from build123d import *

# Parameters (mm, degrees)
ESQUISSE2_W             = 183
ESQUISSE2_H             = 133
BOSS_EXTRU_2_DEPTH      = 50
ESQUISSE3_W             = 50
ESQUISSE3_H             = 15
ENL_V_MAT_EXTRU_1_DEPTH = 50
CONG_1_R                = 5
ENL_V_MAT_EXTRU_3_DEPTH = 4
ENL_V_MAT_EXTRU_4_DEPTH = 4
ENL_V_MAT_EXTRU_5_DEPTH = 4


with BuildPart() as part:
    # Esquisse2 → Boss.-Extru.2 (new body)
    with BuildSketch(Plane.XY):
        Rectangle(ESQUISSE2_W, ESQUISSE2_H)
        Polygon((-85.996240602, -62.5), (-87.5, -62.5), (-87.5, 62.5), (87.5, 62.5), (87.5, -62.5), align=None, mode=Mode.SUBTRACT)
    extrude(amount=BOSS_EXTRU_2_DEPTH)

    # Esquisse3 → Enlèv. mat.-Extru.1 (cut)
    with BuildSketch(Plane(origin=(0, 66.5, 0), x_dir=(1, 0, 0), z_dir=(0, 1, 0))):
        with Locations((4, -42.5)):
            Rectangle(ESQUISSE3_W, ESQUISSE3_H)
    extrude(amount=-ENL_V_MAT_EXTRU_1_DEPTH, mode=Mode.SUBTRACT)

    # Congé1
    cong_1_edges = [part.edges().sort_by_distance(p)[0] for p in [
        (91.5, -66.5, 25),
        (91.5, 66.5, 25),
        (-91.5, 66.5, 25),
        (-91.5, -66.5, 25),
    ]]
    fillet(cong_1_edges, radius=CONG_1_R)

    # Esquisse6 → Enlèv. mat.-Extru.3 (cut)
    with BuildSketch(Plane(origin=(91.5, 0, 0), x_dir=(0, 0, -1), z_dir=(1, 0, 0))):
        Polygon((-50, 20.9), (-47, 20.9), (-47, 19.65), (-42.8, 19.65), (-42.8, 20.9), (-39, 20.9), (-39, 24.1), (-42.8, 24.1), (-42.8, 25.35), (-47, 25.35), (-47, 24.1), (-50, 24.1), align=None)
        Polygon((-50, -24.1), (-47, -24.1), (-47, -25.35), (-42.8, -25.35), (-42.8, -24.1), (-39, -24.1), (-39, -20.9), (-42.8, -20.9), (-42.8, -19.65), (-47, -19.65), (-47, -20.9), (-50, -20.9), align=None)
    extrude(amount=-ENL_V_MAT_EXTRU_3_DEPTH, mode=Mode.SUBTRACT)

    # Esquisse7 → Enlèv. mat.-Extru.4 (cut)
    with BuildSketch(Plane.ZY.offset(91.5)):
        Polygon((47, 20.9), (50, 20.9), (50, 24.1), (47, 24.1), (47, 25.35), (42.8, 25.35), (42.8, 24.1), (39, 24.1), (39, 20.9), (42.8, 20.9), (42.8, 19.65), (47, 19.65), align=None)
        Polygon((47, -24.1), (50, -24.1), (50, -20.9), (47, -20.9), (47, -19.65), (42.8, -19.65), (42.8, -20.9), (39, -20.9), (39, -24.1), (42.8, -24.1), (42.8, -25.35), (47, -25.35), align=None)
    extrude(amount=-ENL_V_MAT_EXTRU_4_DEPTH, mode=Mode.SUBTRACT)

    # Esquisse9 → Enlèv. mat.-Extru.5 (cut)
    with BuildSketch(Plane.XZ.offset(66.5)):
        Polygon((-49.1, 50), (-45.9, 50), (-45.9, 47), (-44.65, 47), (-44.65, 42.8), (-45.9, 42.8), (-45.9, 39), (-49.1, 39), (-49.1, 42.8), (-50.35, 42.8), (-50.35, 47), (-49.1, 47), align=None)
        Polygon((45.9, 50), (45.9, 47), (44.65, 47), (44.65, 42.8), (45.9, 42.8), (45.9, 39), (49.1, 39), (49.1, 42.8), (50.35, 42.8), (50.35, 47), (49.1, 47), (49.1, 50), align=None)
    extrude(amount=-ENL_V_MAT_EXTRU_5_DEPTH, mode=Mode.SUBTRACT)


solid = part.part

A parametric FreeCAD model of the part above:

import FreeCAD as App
import Part
import Sketcher
Q = App.Units.Quantity


def edges_at(feature, points):
    """Names of the edges that pass closest to the given points."""
    edges = feature.Shape.Edges
    near = lambda p: min(range(len(edges)), key=lambda i: edges[i].distToShape(Part.Vertex(*p))[0])
    return sorted({f"Edge{near(p) + 1}" for p in points})


def add_polygon(sketch, points):
    """Adds a closed chain of lines whose ends are joined by coincident constraints."""
    first, n = sketch.GeometryCount, len(points)
    for a, b in zip(points, points[1:] + points[:1]):
        sketch.addGeometry(Part.LineSegment(App.Vector(*a, 0), App.Vector(*b, 0)), False)
    for i in range(n):
        sketch.addConstraint(Sketcher.Constraint("Coincident", first + i, 2, first + (i + 1) % n, 1))

doc = App.newDocument("Part")
body = doc.addObject("PartDesign::Body", "Body")

# Sketch on XY plane
sketch1 = doc.addObject("Sketcher::SketchObject", "Sketch")
body.addObject(sketch1)
sketch1.AttachmentSupport = (doc.XY_Plane, [""])
sketch1.MapMode = "FlatFace"
add_polygon(sketch1, [(-92, 66), (-92, -66), (92, -66), (92, 66)])  # lines 0-3
add_polygon(sketch1, [(88, -62), (-88, -62), (-88, 62), (88, 62)])  # lines 4-7
sketch1.addConstraint([
    Sketcher.Constraint("Vertical", 0),
    Sketcher.Constraint("Horizontal", 1),
    Sketcher.Constraint("Vertical", 2),
    Sketcher.Constraint("Horizontal", 3),
    Sketcher.Constraint("Horizontal", 4),
    Sketcher.Constraint("Vertical", 5),
    Sketcher.Constraint("Horizontal", 6),
    Sketcher.Constraint("Vertical", 7),
    Sketcher.Constraint("Symmetric", 0, 2, 2, 2, -1, 1),
    Sketcher.Constraint("Symmetric", 4, 2, 6, 2, -1, 1),
    Sketcher.Constraint("DistanceX", 1, 1, 1, 2, Q("183 mm")),
    Sketcher.Constraint("DistanceX", 4, 2, 4, 1, Q("175 mm")),
    Sketcher.Constraint("DistanceY", 0, 2, 0, 1, Q("133 mm")),
    Sketcher.Constraint("DistanceY", 5, 1, 5, 2, Q("125 mm")),
])
pad1 = doc.addObject("PartDesign::Pad", "Pad")
body.addObject(pad1)
pad1.Profile = sketch1
pad1.Length = 50

# Sketch on XZ plane
sketch2 = doc.addObject("Sketcher::SketchObject", "Sketch001")
body.addObject(sketch2)
sketch2.AttachmentSupport = (doc.XZ_Plane, [""])
sketch2.MapMode = "FlatFace"
sketch2.AttachmentOffset = App.Placement(App.Vector(0, 0, -66.5), App.Rotation())
add_polygon(sketch2, [(-21, 35), (-21, 50), (29, 50), (29, 35)])  # lines 0-3
sketch2.addConstraint([
    Sketcher.Constraint("Vertical", 0),
    Sketcher.Constraint("Horizontal", 1),
    Sketcher.Constraint("Vertical", 2),
    Sketcher.Constraint("Horizontal", 3),
    Sketcher.Constraint("DistanceX", 1, 1, 1, 2, Q("50 mm")),
    Sketcher.Constraint("DistanceY", 0, 1, 0, 2, Q("15 mm")),
    Sketcher.Constraint("DistanceX", 0, 2, -1, 1, Q("21 mm")),
    Sketcher.Constraint("DistanceY", -1, 1, 0, 2, Q("50 mm")),
])
pocket1 = doc.addObject("PartDesign::Pocket", "Pocket")
body.addObject(pocket1)
pocket1.Profile = sketch2
pocket1.Length = 50
pocket1.Reversed = True
doc.recompute()

fillet = doc.addObject("PartDesign::Fillet", "Fillet")
body.addObject(fillet)
fillet.Base = (pocket1, edges_at(pocket1, [
    (91.5, -66.5, 25),
    (91.5, 66.5, 25),
    (-91.5, 66.5, 25),
    (-91.5, -66.5, 25),
]))
fillet.Radius = 5

# Sketch on YZ plane
sketch3 = doc.addObject("Sketcher::SketchObject", "Sketch002")
body.addObject(sketch3)
sketch3.AttachmentSupport = (doc.YZ_Plane, [""])
sketch3.MapMode = "FlatFace"
sketch3.AttachmentOffset = App.Placement(App.Vector(0, 0, 91.5), App.Rotation())
add_polygon(sketch3, [(20.9, 50), (20.9, 47), (19.6, 47), (19.6, 42.8), (20.9, 42.8), (20.9, 39), (24.1, 39), (24.1, 42.8), (25.4, 42.8), (25.4, 47), (24.1, 47), (24.1, 50)])  # lines 0-11
add_polygon(sketch3, [(-24.1, 50), (-24.1, 47), (-25.4, 47), (-25.4, 42.8), (-24.1, 42.8), (-24.1, 39), (-20.9, 39), (-20.9, 42.8), (-19.6, 42.8), (-19.6, 47), (-20.9, 47), (-20.9, 50)])  # lines 12-23
sketch3.addConstraint([
    Sketcher.Constraint("Vertical", 0),
    Sketcher.Constraint("Horizontal", 1),
    Sketcher.Constraint("Vertical", 2),
    Sketcher.Constraint("Horizontal", 3),
    Sketcher.Constraint("Vertical", 4),
    Sketcher.Constraint("Horizontal", 5),
    Sketcher.Constraint("Vertical", 6),
    Sketcher.Constraint("Horizontal", 7),
    Sketcher.Constraint("Vertical", 8),
    Sketcher.Constraint("Horizontal", 9),
    Sketcher.Constraint("Vertical", 10),
    Sketcher.Constraint("Horizontal", 11),
    Sketcher.Constraint("Vertical", 12),
    Sketcher.Constraint("Horizontal", 13),
    Sketcher.Constraint("Vertical", 14),
    Sketcher.Constraint("Horizontal", 15),
    Sketcher.Constraint("Vertical", 16),
    Sketcher.Constraint("Horizontal", 17),
    Sketcher.Constraint("Vertical", 18),
    Sketcher.Constraint("Horizontal", 19),
    Sketcher.Constraint("Vertical", 20),
    Sketcher.Constraint("Horizontal", 21),
    Sketcher.Constraint("Vertical", 22),
    Sketcher.Constraint("Horizontal", 23),
    Sketcher.Constraint("Symmetric", 9, 2, 12, 2, -2),
    Sketcher.Constraint("Symmetric", 7, 2, 14, 2, -2),
    Sketcher.Constraint("Symmetric", 5, 2, 16, 2, -2),
    Sketcher.Constraint("Symmetric", 3, 2, 18, 2, -2),
    Sketcher.Constraint("Symmetric", 1, 2, 20, 2, -2),
    Sketcher.Constraint("Symmetric", 11, 2, 22, 2, -2),
    Sketcher.Constraint("Horizontal", 3, 2, 6, 2),
    Sketcher.Constraint("Horizontal", 1, 2, 8, 2),
    Sketcher.Constraint("Vertical", 0, 2, 3, 2),
    Sketcher.Constraint("Vertical", 6, 2, 9, 2),
    Sketcher.Constraint("Equal", 3, 7),
    Sketcher.Constraint("DistanceY", 0, 2, 0, 1, Q("3 mm")),
    Sketcher.Constraint("DistanceX", 5, 1, 5, 2, Q("3.2 mm")),
    Sketcher.Constraint("DistanceY", 2, 2, 2, 1, Q("4.2 mm")),
    Sketcher.Constraint("DistanceY", 4, 2, 4, 1, Q("3.8 mm")),
    Sketcher.Constraint("DistanceY", -1, 1, 0, 2, Q("47 mm")),
    Sketcher.Constraint("DistanceX", 12, 2, 0, 2, Q("45 mm")),
    Sketcher.Constraint("DistanceX", 1, 2, 1, 1, Q("1.25 mm")),
])
pocket2 = doc.addObject("PartDesign::Pocket", "Pocket001")
body.addObject(pocket2)
pocket2.Profile = sketch3
pocket2.Length = 4

# Sketch on YZ plane
sketch4 = doc.addObject("Sketcher::SketchObject", "Sketch003")
body.addObject(sketch4)
sketch4.AttachmentSupport = (doc.YZ_Plane, [""])
sketch4.MapMode = "FlatFace"
sketch4.AttachmentOffset = App.Placement(App.Vector(0, 0, -91.5), App.Rotation())
add_polygon(sketch4, [(20.9, 47), (20.9, 50), (24.1, 50), (24.1, 47), (25.4, 47), (25.4, 42.8), (24.1, 42.8), (24.1, 39), (20.9, 39), (20.9, 42.8), (19.6, 42.8), (19.6, 47)])  # lines 0-11
add_polygon(sketch4, [(-24.1, 47), (-24.1, 50), (-20.9, 50), (-20.9, 47), (-19.6, 47), (-19.6, 42.8), (-20.9, 42.8), (-20.9, 39), (-24.1, 39), (-24.1, 42.8), (-25.4, 42.8), (-25.4, 47)])  # lines 12-23
sketch4.addConstraint([
    Sketcher.Constraint("Vertical", 0),
    Sketcher.Constraint("Horizontal", 1),
    Sketcher.Constraint("Vertical", 2),
    Sketcher.Constraint("Horizontal", 3),
    Sketcher.Constraint("Vertical", 4),
    Sketcher.Constraint("Horizontal", 5),
    Sketcher.Constraint("Vertical", 6),
    Sketcher.Constraint("Horizontal", 7),
    Sketcher.Constraint("Vertical", 8),
    Sketcher.Constraint("Horizontal", 9),
    Sketcher.Constraint("Vertical", 10),
    Sketcher.Constraint("Horizontal", 11),
    Sketcher.Constraint("Vertical", 12),
    Sketcher.Constraint("Horizontal", 13),
    Sketcher.Constraint("Vertical", 14),
    Sketcher.Constraint("Horizontal", 15),
    Sketcher.Constraint("Vertical", 16),
    Sketcher.Constraint("Horizontal", 17),
    Sketcher.Constraint("Vertical", 18),
    Sketcher.Constraint("Horizontal", 19),
    Sketcher.Constraint("Vertical", 20),
    Sketcher.Constraint("Horizontal", 21),
    Sketcher.Constraint("Vertical", 22),
    Sketcher.Constraint("Horizontal", 23),
    Sketcher.Constraint("Symmetric", 1, 2, 12, 2, -2),
    Sketcher.Constraint("Symmetric", 11, 2, 14, 2, -2),
    Sketcher.Constraint("Symmetric", 9, 2, 16, 2, -2),
    Sketcher.Constraint("Symmetric", 7, 2, 18, 2, -2),
    Sketcher.Constraint("Symmetric", 5, 2, 20, 2, -2),
    Sketcher.Constraint("Symmetric", 3, 2, 22, 2, -2),
    Sketcher.Constraint("Horizontal", 5, 2, 8, 2),
    Sketcher.Constraint("Horizontal", 3, 2, 10, 2),
    Sketcher.Constraint("Vertical", 2, 2, 5, 2),
    Sketcher.Constraint("Vertical", 0, 2, 7, 2),
    Sketcher.Constraint("Equal", 5, 9),
    Sketcher.Constraint("DistanceY", 0, 1, 0, 2, Q("3 mm")),
    Sketcher.Constraint("DistanceX", 1, 1, 1, 2, Q("3.2 mm")),
    Sketcher.Constraint("DistanceY", 4, 2, 4, 1, Q("4.2 mm")),
    Sketcher.Constraint("DistanceY", 6, 2, 6, 1, Q("3.8 mm")),
    Sketcher.Constraint("DistanceY", -1, 1, 0, 2, Q("50 mm")),
    Sketcher.Constraint("DistanceX", 12, 2, 0, 2, Q("45 mm")),
    Sketcher.Constraint("DistanceX", 3, 1, 3, 2, Q("1.25 mm")),
])
pocket3 = doc.addObject("PartDesign::Pocket", "Pocket002")
body.addObject(pocket3)
pocket3.Profile = sketch4
pocket3.Length = 4
pocket3.Reversed = True

# Sketch on XZ plane
sketch5 = doc.addObject("Sketcher::SketchObject", "Sketch004")
body.addObject(sketch5)
sketch5.AttachmentSupport = (doc.XZ_Plane, [""])
sketch5.MapMode = "FlatFace"
sketch5.AttachmentOffset = App.Placement(App.Vector(0, 0, 66.5), App.Rotation())
add_polygon(sketch5, [(-45.9, 50), (-49.1, 50), (-49.1, 47), (-50.4, 47), (-50.4, 42.8), (-49.1, 42.8), (-49.1, 39), (-45.9, 39), (-45.9, 42.8), (-44.6, 42.8), (-44.6, 47), (-45.9, 47)])  # lines 0-11
add_polygon(sketch5, [(45.9, 50), (45.9, 47), (44.6, 47), (44.6, 42.8), (45.9, 42.8), (45.9, 39), (49.1, 39), (49.1, 42.8), (50.4, 42.8), (50.4, 47), (49.1, 47), (49.1, 50)])  # lines 12-23
sketch5.addConstraint([
    Sketcher.Constraint("Horizontal", 0),
    Sketcher.Constraint("Vertical", 1),
    Sketcher.Constraint("Horizontal", 2),
    Sketcher.Constraint("Vertical", 3),
    Sketcher.Constraint("Horizontal", 4),
    Sketcher.Constraint("Vertical", 5),
    Sketcher.Constraint("Horizontal", 6),
    Sketcher.Constraint("Vertical", 7),
    Sketcher.Constraint("Horizontal", 8),
    Sketcher.Constraint("Vertical", 9),
    Sketcher.Constraint("Horizontal", 10),
    Sketcher.Constraint("Vertical", 11),
    Sketcher.Constraint("Vertical", 12),
    Sketcher.Constraint("Horizontal", 13),
    Sketcher.Constraint("Vertical", 14),
    Sketcher.Constraint("Horizontal", 15),
    Sketcher.Constraint("Vertical", 16),
    Sketcher.Constraint("Horizontal", 17),
    Sketcher.Constraint("Vertical", 18),
    Sketcher.Constraint("Horizontal", 19),
    Sketcher.Constraint("Vertical", 20),
    Sketcher.Constraint("Horizontal", 21),
    Sketcher.Constraint("Vertical", 22),
    Sketcher.Constraint("Horizontal", 23),
    Sketcher.Constraint("Symmetric", 10, 2, 12, 2, -2),
    Sketcher.Constraint("Symmetric", 8, 2, 14, 2, -2),
    Sketcher.Constraint("Symmetric", 6, 2, 16, 2, -2),
    Sketcher.Constraint("Symmetric", 4, 2, 18, 2, -2),
    Sketcher.Constraint("Symmetric", 2, 2, 20, 2, -2),
    Sketcher.Constraint("Symmetric", 0, 2, 22, 2, -2),
    Sketcher.Constraint("Horizontal", 4, 2, 7, 2),
    Sketcher.Constraint("Horizontal", 2, 2, 9, 2),
    Sketcher.Constraint("Vertical", 1, 2, 4, 2),
    Sketcher.Constraint("Vertical", 7, 2, 10, 2),
    Sketcher.Constraint("Equal", 4, 8),
    Sketcher.Constraint("DistanceY", 1, 2, 1, 1, Q("3 mm")),
    Sketcher.Constraint("DistanceX", 0, 2, 0, 1, Q("3.2 mm")),
    Sketcher.Constraint("DistanceY", 3, 2, 3, 1, Q("4.2 mm")),
    Sketcher.Constraint("DistanceY", 5, 2, 5, 1, Q("3.8 mm")),
    Sketcher.Constraint("DistanceY", -1, 1, 0, 2, Q("50 mm")),
    Sketcher.Constraint("DistanceX", 2, 2, 2, 1, Q("1.25 mm")),
    Sketcher.Constraint("DistanceX", 0, 2, -1, 1, Q("49.1 mm")),
])
pocket4 = doc.addObject("PartDesign::Pocket", "Pocket003")
body.addObject(pocket4)
pocket4.Profile = sketch5
pocket4.Length = 4

doc.recompute()
